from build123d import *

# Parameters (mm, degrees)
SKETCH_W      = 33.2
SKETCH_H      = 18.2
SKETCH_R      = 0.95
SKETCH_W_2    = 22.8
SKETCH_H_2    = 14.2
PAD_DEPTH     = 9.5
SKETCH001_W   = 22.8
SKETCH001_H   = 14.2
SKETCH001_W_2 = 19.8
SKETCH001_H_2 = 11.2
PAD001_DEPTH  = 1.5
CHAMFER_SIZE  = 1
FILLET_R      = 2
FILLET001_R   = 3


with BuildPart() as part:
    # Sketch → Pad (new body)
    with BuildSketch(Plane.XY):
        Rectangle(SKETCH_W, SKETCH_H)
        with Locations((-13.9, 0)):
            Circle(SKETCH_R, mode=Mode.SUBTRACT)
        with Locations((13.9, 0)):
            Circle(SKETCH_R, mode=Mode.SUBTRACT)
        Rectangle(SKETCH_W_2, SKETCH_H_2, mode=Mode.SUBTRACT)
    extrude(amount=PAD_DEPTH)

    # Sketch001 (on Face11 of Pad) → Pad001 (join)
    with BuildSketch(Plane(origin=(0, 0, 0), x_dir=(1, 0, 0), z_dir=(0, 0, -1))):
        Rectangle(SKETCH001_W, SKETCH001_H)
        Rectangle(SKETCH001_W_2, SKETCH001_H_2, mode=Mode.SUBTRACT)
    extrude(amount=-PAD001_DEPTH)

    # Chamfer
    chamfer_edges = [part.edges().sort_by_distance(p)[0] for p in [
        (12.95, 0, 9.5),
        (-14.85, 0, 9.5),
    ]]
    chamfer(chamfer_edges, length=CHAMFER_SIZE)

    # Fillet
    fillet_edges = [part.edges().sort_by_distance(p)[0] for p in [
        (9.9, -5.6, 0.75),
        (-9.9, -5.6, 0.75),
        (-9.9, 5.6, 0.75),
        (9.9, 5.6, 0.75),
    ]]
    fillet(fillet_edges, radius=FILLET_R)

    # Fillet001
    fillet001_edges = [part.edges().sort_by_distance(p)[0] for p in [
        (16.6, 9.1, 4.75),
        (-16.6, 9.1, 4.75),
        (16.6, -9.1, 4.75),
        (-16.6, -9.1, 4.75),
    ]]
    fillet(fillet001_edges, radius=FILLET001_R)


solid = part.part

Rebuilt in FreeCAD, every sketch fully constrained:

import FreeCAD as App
import Part
import Sketcher


def edges_at(feature, points):
    """Names of the edges that pass closest to the given points."""
    edges = feature.Shape.Edges
    near = lambda p: min(range(len(edges)), key=lambda i: edges[i].distToShape(Part.Vertex(*p))[0])
    return sorted({f"Edge{near(p) + 1}" for p in points})


def add_polygon(sketch, points):
    """Adds a closed chain of lines whose ends are joined by coincident constraints."""
    first, n = sketch.GeometryCount, len(points)
    for a, b in zip(points, points[1:] + points[:1]):
        sketch.addGeometry(Part.LineSegment(App.Vector(*a, 0), App.Vector(*b, 0)), False)
    for i in range(n):
        sketch.addConstraint(Sketcher.Constraint("Coincident", first + i, 2, first + (i + 1) % n, 1))

doc = App.newDocument("Part")
body = doc.addObject("PartDesign::Body", "Body")

sketch1 = doc.addObject("Sketcher::SketchObject", "Sketch")
body.addObject(sketch1)
sketch1.AttachmentSupport = (doc.XY_Plane, [""])
sketch1.MapMode = "FlatFace"
add_polygon(sketch1, [(-16.6, 9.1), (-16.6, -9.1), (16.6, -9.1), (16.6, 9.1)])
sketch1.addGeometry(Part.Circle(App.Vector(-13.9, 0, 0), App.Vector(0, 0, 1), 0.9), False)
add_polygon(sketch1, [(11.4, -7.1), (-11.4, -7.1), (-11.4, 7.1), (11.4, 7.1)])
sketch1.addGeometry(Part.Circle(App.Vector(13.9, 0, 0), App.Vector(0, 0, 1), 0.9), False)
sketch1.addConstraint(Sketcher.Constraint("Vertical", 0))
sketch1.addConstraint(Sketcher.Constraint("Horizontal", 1))
sketch1.addConstraint(Sketcher.Constraint("Vertical", 2))
sketch1.addConstraint(Sketcher.Constraint("Horizontal", 3))
sketch1.addConstraint(Sketcher.Constraint("Horizontal", 5))
sketch1.addConstraint(Sketcher.Constraint("Vertical", 6))
sketch1.addConstraint(Sketcher.Constraint("Horizontal", 7))
sketch1.addConstraint(Sketcher.Constraint("Vertical", 8))
sketch1.addConstraint(Sketcher.Constraint("Equal", 4, 9))
sketch1.addConstraint(Sketcher.Constraint("Symmetric", 4, 3, 9, 3, -1, 1))
sketch1.addConstraint(Sketcher.Constraint("Symmetric", 0, 2, 2, 2, -1, 1))
sketch1.addConstraint(Sketcher.Constraint("Symmetric", 5, 2, 7, 2, -1, 1))
sketch1.addConstraint(Sketcher.Constraint("PointOnObject", 4, 3, -1))
sketch1.addConstraint(Sketcher.Constraint("Diameter", 4, 1.9))
sketch1.addConstraint(Sketcher.Constraint("DistanceX", 1, 1, 1, 2, 33.2))
sketch1.addConstraint(Sketcher.Constraint("DistanceX", 5, 2, 5, 1, 22.8))
sketch1.addConstraint(Sketcher.Constraint("DistanceY", 0, 2, 0, 1, 18.2))
sketch1.addConstraint(Sketcher.Constraint("DistanceY", 6, 1, 6, 2, 14.2))
sketch1.addConstraint(Sketcher.Constraint("DistanceX", 4, 3, -1, 1, 13.9))
pad1 = doc.addObject("PartDesign::Pad", "Pad")
body.addObject(pad1)
pad1.Profile = sketch1
pad1.Length = 9.5

sketch2 = doc.addObject("Sketcher::SketchObject", "Sketch001")
body.addObject(sketch2)
sketch2.AttachmentSupport = (doc.XY_Plane, [""])
sketch2.MapMode = "FlatFace"
add_polygon(sketch2, [(-11, -7), (-11, 7), (11, 7), (11, -7)])
add_polygon(sketch2, [(10, 6), (-10, 6), (-10, -6), (10, -6)])
sketch2.addConstraint(Sketcher.Constraint("Vertical", 0))
sketch2.addConstraint(Sketcher.Constraint("Horizontal", 1))
sketch2.addConstraint(Sketcher.Constraint("Vertical", 2))
sketch2.addConstraint(Sketcher.Constraint("Horizontal", 3))
sketch2.addConstraint(Sketcher.Constraint("Horizontal", 4))
sketch2.addConstraint(Sketcher.Constraint("Vertical", 5))
sketch2.addConstraint(Sketcher.Constraint("Horizontal", 6))
sketch2.addConstraint(Sketcher.Constraint("Vertical", 7))
sketch2.addConstraint(Sketcher.Constraint("Symmetric", 0, 2, 2, 2, -1, 1))
sketch2.addConstraint(Sketcher.Constraint("Symmetric", 4, 2, 6, 2, -1, 1))
sketch2.addConstraint(Sketcher.Constraint("DistanceX", 1, 1, 1, 2, 22.8))
sketch2.addConstraint(Sketcher.Constraint("DistanceX", 4, 2, 4, 1, 19.8))
sketch2.addConstraint(Sketcher.Constraint("DistanceY", 0, 1, 0, 2, 14.2))
sketch2.addConstraint(Sketcher.Constraint("DistanceY", 5, 2, 5, 1, 11.2))
pad2 = doc.addObject("PartDesign::Pad", "Pad001")
body.addObject(pad2)
pad2.Profile = sketch2
pad2.Length = 1.5
doc.recompute()

chamfer = doc.addObject("PartDesign::Chamfer", "Chamfer")
body.addObject(chamfer)
chamfer.Base = (pad2, edges_at(pad2, [(12.95, 0, 9.5), (-14.85, 0, 9.5)]))
chamfer.Size = 1
doc.recompute()

fillet = doc.addObject("PartDesign::Fillet", "Fillet")
body.addObject(fillet)
fillet.Base = (chamfer, edges_at(chamfer, [
    (9.9, -5.6, 0.75),
    (-9.9, -5.6, 0.75),
    (-9.9, 5.6, 0.75),
    (9.9, 5.6, 0.75),
]))
fillet.Radius = 2
doc.recompute()

fillet2 = doc.addObject("PartDesign::Fillet", "Fillet001")
body.addObject(fillet2)
fillet2.Base = (fillet, edges_at(fillet, [
    (16.6, 9.1, 4.75),
    (-16.6, 9.1, 4.75),
    (16.6, -9.1, 4.75),
    (-16.6, -9.1, 4.75),
]))
fillet2.Radius = 3

doc.recompute()
